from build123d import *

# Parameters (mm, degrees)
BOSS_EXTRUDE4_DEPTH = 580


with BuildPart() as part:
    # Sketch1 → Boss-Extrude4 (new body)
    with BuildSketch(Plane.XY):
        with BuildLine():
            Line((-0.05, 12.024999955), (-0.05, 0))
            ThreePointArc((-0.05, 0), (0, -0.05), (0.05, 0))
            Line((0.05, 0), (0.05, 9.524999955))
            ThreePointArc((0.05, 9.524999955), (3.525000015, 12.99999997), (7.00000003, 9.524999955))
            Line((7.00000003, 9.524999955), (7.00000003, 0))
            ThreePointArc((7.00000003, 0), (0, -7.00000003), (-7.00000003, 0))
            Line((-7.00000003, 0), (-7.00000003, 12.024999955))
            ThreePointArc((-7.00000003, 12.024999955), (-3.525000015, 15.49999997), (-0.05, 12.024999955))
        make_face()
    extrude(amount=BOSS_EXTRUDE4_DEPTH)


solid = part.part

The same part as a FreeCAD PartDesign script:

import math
import FreeCAD as App
import Part
import Sketcher
from FreeCAD import Vector

doc = App.newDocument("Part")
body = doc.addObject("PartDesign::Body", "Body")

sketch1 = doc.addObject("Sketcher::SketchObject", "Sketch")
body.addObject(sketch1)
sketch1.AttachmentSupport = (doc.XY_Plane, [""])
sketch1.MapMode = "FlatFace"
sketch1.addGeometry([
    Part.LineSegment(Vector(-0.05, 0, 0), Vector(-0.05, 12.02, 0)),
    Part.ArcOfCircle(Part.Circle(Vector(-3.53, 12.02, 0), Vector(0, 0, 1), 3.48), math.radians(0), math.radians(180)),
    Part.LineSegment(Vector(-7, 12.02, 0), Vector(-7, 0, 0)),
    Part.ArcOfCircle(Part.Circle(Vector(0, 0, 0), Vector(0, 0, 1), 7), math.radians(180), math.radians(360)),
    Part.LineSegment(Vector(7, 0, 0), Vector(7, 9.52, 0)),
    Part.ArcOfCircle(Part.Circle(Vector(3.53, 9.52, 0), Vector(0, 0, 1), 3.48), math.radians(0), math.radians(180)),
    Part.LineSegment(Vector(0.05, 9.52, 0), Vector(0.05, 0, 0)),
    Part.ArcOfCircle(Part.Circle(Vector(0, 0, 0), Vector(0, 0, 1), 0.05), math.radians(180), math.radians(360)),
], False)
sketch1.addConstraint([
    Sketcher.Constraint("Tangent", 0, 2, 1, 1),
    Sketcher.Constraint("Tangent", 1, 2, 2, 1),
    Sketcher.Constraint("Tangent", 2, 2, 3, 1),
    Sketcher.Constraint("Tangent", 3, 2, 4, 1),
    Sketcher.Constraint("Tangent", 4, 2, 5, 1),
    Sketcher.Constraint("Tangent", 5, 2, 6, 1),
    Sketcher.Constraint("Tangent", 6, 2, 7, 2),
    Sketcher.Constraint("Tangent", 7, 1, 0, 1),
    Sketcher.Constraint("Vertical", 0),
    Sketcher.Constraint("Vertical", 2),
    Sketcher.Constraint("Vertical", 4),
    Sketcher.Constraint("Vertical", 6),
    Sketcher.Constraint("Coincident", 3, 3, -1, 1),
    Sketcher.Constraint("Coincident", 7, 3, -1, 1),
    Sketcher.Constraint("Radius", 3, 7.0),
    Sketcher.Constraint("Radius", 7, 0.05),
    Sketcher.Constraint("DistanceY", 5, 3, 1, 3, 2.5),
    Sketcher.Constraint("DistanceY", 0, 1, 0, 2, 12.025),
])
pad1 = doc.addObject("PartDesign::Pad", "Pad")
body.addObject(pad1)
pad1.Profile = sketch1
pad1.Length = 580

doc.recompute()
